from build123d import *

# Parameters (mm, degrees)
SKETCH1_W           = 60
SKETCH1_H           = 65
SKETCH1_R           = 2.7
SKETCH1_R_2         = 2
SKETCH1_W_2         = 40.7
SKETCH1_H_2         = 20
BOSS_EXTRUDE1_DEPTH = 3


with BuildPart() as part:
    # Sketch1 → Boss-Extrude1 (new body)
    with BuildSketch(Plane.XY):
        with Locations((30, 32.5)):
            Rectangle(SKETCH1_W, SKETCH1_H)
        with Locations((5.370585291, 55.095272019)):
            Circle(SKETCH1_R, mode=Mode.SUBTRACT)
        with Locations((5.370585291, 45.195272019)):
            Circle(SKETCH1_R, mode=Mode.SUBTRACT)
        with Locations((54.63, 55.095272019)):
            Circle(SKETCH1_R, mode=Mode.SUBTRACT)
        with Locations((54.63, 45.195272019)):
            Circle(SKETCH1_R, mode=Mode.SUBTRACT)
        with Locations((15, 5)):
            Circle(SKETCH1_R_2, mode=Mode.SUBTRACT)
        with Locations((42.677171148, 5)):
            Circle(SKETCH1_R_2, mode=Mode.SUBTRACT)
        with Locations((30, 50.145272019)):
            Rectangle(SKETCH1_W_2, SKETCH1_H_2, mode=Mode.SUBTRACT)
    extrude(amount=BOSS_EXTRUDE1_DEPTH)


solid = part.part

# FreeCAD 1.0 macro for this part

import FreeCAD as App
import Part
import Sketcher

V = App.Vector
Q = App.Units.Quantity


def add_polygon(sketch, points):
    """Adds a closed chain of lines whose ends are joined by coincident constraints."""
    first, n = sketch.GeometryCount, len(points)
    for a, b in zip(points, points[1:] + points[:1]):
        sketch.addGeometry(Part.LineSegment(App.Vector(*a, 0), App.Vector(*b, 0)), False)
    for i in range(n):
        sketch.addConstraint(Sketcher.Constraint("Coincident", first + i, 2, first + (i + 1) % n, 1))

doc = App.newDocument("Part")
params = doc.addObject("Spreadsheet::Sheet", "Params")
for row, (alias, value) in enumerate([
    ("sketch1_diameter", "4 mm"),
    ("sketch1_diameter2", "5.4 mm"),
    ("sketch1_width", "60 mm"),
    ("sketch1_height", "65 mm"),
    ("sketch1_height2", "20 mm"),
    ("pad1_length", "3 mm"),
], start=1):
    params.set(f"A{row}", alias)
    params.set(f"B{row}", "=" + value)
    params.setAlias(f"B{row}", alias)

body = doc.addObject("PartDesign::Body", "Body")

sketch1 = doc.addObject("Sketcher::SketchObject", "Sketch")
body.addObject(sketch1)
sketch1.AttachmentSupport = (doc.XY_Plane, [""])
sketch1.MapMode = "FlatFace"
add_polygon(sketch1, [(0, 65), (0, 0), (60, 0), (60, 65)])
sketch1.addGeometry(Part.Circle(V(15, 5, 0), V(0, 0, 1), 2), False)
sketch1.addGeometry(Part.Circle(V(42.677171, 5, 0), V(0, 0, 1), 2), False)
sketch1.addGeometry(Part.Circle(V(5.370585, 45.195272, 0), V(0, 0, 1), 2.7), False)
sketch1.addGeometry(Part.Circle(V(5.370585, 55.095272, 0), V(0, 0, 1), 2.7), False)
add_polygon(sketch1, [(50.35, 40.145272), (9.65, 40.145272), (9.65, 60.145272), (50.35, 60.145272)])
sketch1.addGeometry(Part.Circle(V(54.63, 45.195272, 0), V(0, 0, 1), 2.7), False)
sketch1.addGeometry(Part.Circle(V(54.63, 55.095272, 0), V(0, 0, 1), 2.7), False)
sketch1.addConstraint([
    Sketcher.Constraint("Vertical", 0),
    Sketcher.Constraint("Horizontal", 1),
    Sketcher.Constraint("Vertical", 2),
    Sketcher.Constraint("Horizontal", 3),
    Sketcher.Constraint("Horizontal", 8),
    Sketcher.Constraint("Vertical", 9),
    Sketcher.Constraint("Horizontal", 10),
    Sketcher.Constraint("Vertical", 11),
    Sketcher.Constraint("Coincident", 0, 2, -1, 1),
    Sketcher.Constraint("Equal", 4, 5),
    Sketcher.Constraint("Equal", 6, 7),
    Sketcher.Constraint("Equal", 7, 12),
    Sketcher.Constraint("Equal", 12, 13),
    Sketcher.Constraint("Horizontal", 4, 3, 5, 3),
    Sketcher.Constraint("Horizontal", 6, 3, 12, 3),
    Sketcher.Constraint("Horizontal", 7, 3, 13, 3),
    Sketcher.Constraint("Vertical", 6, 3, 7, 3),
    Sketcher.Constraint("Vertical", 12, 3, 13, 3),
    Sketcher.Constraint("Diameter", 4, Q("4 mm")),
    Sketcher.Constraint("Diameter", 6, Q("5.4 mm")),
    Sketcher.Constraint("DistanceX", 1, 1, 1, 2, Q("60 mm")),
    Sketcher.Constraint("DistanceY", 0, 2, 0, 1, Q("65 mm")),
    Sketcher.Constraint("DistanceY", 9, 1, 9, 2, Q("20 mm")),
    Sketcher.Constraint("DistanceX", 8, 2, 8, 1, Q("40.7 mm")),
    Sketcher.Constraint("DistanceX", -1, 1, 4, 3, Q("15 mm")),
    Sketcher.Constraint("DistanceY", -1, 1, 4, 3, Q("5 mm")),
    Sketcher.Constraint("DistanceY", 6, 3, 7, 3, Q("9.9 mm")),
    Sketcher.Constraint("DistanceX", -1, 1, 12, 3, Q("54.63 mm")),
    Sketcher.Constraint("DistanceX", -1, 1, 8, 2, Q("9.65 mm")),
    Sketcher.Constraint("DistanceY", 8, 2, 6, 3, Q("5.05 mm")),
    Sketcher.Constraint("DistanceX", -1, 1, 5, 3, Q("42.677171 mm")),
    Sketcher.Constraint("DistanceX", -1, 1, 6, 3, Q("5.370585 mm")),
    Sketcher.Constraint("DistanceY", -1, 1, 6, 3, Q("45.195272 mm")),
])
sketch1.setExpression("Constraints[26]", "Params.sketch1_diameter")
sketch1.setExpression("Constraints[27]", "Params.sketch1_diameter2")
sketch1.setExpression("Constraints[28]", "Params.sketch1_width")
sketch1.setExpression("Constraints[29]", "Params.sketch1_height")
sketch1.setExpression("Constraints[30]", "Params.sketch1_height2")
pad1 = doc.addObject("PartDesign::Pad", "Pad")
body.addObject(pad1)
pad1.Profile = sketch1
pad1.setExpression("Length", "Params.pad1_length")

doc.recompute()
